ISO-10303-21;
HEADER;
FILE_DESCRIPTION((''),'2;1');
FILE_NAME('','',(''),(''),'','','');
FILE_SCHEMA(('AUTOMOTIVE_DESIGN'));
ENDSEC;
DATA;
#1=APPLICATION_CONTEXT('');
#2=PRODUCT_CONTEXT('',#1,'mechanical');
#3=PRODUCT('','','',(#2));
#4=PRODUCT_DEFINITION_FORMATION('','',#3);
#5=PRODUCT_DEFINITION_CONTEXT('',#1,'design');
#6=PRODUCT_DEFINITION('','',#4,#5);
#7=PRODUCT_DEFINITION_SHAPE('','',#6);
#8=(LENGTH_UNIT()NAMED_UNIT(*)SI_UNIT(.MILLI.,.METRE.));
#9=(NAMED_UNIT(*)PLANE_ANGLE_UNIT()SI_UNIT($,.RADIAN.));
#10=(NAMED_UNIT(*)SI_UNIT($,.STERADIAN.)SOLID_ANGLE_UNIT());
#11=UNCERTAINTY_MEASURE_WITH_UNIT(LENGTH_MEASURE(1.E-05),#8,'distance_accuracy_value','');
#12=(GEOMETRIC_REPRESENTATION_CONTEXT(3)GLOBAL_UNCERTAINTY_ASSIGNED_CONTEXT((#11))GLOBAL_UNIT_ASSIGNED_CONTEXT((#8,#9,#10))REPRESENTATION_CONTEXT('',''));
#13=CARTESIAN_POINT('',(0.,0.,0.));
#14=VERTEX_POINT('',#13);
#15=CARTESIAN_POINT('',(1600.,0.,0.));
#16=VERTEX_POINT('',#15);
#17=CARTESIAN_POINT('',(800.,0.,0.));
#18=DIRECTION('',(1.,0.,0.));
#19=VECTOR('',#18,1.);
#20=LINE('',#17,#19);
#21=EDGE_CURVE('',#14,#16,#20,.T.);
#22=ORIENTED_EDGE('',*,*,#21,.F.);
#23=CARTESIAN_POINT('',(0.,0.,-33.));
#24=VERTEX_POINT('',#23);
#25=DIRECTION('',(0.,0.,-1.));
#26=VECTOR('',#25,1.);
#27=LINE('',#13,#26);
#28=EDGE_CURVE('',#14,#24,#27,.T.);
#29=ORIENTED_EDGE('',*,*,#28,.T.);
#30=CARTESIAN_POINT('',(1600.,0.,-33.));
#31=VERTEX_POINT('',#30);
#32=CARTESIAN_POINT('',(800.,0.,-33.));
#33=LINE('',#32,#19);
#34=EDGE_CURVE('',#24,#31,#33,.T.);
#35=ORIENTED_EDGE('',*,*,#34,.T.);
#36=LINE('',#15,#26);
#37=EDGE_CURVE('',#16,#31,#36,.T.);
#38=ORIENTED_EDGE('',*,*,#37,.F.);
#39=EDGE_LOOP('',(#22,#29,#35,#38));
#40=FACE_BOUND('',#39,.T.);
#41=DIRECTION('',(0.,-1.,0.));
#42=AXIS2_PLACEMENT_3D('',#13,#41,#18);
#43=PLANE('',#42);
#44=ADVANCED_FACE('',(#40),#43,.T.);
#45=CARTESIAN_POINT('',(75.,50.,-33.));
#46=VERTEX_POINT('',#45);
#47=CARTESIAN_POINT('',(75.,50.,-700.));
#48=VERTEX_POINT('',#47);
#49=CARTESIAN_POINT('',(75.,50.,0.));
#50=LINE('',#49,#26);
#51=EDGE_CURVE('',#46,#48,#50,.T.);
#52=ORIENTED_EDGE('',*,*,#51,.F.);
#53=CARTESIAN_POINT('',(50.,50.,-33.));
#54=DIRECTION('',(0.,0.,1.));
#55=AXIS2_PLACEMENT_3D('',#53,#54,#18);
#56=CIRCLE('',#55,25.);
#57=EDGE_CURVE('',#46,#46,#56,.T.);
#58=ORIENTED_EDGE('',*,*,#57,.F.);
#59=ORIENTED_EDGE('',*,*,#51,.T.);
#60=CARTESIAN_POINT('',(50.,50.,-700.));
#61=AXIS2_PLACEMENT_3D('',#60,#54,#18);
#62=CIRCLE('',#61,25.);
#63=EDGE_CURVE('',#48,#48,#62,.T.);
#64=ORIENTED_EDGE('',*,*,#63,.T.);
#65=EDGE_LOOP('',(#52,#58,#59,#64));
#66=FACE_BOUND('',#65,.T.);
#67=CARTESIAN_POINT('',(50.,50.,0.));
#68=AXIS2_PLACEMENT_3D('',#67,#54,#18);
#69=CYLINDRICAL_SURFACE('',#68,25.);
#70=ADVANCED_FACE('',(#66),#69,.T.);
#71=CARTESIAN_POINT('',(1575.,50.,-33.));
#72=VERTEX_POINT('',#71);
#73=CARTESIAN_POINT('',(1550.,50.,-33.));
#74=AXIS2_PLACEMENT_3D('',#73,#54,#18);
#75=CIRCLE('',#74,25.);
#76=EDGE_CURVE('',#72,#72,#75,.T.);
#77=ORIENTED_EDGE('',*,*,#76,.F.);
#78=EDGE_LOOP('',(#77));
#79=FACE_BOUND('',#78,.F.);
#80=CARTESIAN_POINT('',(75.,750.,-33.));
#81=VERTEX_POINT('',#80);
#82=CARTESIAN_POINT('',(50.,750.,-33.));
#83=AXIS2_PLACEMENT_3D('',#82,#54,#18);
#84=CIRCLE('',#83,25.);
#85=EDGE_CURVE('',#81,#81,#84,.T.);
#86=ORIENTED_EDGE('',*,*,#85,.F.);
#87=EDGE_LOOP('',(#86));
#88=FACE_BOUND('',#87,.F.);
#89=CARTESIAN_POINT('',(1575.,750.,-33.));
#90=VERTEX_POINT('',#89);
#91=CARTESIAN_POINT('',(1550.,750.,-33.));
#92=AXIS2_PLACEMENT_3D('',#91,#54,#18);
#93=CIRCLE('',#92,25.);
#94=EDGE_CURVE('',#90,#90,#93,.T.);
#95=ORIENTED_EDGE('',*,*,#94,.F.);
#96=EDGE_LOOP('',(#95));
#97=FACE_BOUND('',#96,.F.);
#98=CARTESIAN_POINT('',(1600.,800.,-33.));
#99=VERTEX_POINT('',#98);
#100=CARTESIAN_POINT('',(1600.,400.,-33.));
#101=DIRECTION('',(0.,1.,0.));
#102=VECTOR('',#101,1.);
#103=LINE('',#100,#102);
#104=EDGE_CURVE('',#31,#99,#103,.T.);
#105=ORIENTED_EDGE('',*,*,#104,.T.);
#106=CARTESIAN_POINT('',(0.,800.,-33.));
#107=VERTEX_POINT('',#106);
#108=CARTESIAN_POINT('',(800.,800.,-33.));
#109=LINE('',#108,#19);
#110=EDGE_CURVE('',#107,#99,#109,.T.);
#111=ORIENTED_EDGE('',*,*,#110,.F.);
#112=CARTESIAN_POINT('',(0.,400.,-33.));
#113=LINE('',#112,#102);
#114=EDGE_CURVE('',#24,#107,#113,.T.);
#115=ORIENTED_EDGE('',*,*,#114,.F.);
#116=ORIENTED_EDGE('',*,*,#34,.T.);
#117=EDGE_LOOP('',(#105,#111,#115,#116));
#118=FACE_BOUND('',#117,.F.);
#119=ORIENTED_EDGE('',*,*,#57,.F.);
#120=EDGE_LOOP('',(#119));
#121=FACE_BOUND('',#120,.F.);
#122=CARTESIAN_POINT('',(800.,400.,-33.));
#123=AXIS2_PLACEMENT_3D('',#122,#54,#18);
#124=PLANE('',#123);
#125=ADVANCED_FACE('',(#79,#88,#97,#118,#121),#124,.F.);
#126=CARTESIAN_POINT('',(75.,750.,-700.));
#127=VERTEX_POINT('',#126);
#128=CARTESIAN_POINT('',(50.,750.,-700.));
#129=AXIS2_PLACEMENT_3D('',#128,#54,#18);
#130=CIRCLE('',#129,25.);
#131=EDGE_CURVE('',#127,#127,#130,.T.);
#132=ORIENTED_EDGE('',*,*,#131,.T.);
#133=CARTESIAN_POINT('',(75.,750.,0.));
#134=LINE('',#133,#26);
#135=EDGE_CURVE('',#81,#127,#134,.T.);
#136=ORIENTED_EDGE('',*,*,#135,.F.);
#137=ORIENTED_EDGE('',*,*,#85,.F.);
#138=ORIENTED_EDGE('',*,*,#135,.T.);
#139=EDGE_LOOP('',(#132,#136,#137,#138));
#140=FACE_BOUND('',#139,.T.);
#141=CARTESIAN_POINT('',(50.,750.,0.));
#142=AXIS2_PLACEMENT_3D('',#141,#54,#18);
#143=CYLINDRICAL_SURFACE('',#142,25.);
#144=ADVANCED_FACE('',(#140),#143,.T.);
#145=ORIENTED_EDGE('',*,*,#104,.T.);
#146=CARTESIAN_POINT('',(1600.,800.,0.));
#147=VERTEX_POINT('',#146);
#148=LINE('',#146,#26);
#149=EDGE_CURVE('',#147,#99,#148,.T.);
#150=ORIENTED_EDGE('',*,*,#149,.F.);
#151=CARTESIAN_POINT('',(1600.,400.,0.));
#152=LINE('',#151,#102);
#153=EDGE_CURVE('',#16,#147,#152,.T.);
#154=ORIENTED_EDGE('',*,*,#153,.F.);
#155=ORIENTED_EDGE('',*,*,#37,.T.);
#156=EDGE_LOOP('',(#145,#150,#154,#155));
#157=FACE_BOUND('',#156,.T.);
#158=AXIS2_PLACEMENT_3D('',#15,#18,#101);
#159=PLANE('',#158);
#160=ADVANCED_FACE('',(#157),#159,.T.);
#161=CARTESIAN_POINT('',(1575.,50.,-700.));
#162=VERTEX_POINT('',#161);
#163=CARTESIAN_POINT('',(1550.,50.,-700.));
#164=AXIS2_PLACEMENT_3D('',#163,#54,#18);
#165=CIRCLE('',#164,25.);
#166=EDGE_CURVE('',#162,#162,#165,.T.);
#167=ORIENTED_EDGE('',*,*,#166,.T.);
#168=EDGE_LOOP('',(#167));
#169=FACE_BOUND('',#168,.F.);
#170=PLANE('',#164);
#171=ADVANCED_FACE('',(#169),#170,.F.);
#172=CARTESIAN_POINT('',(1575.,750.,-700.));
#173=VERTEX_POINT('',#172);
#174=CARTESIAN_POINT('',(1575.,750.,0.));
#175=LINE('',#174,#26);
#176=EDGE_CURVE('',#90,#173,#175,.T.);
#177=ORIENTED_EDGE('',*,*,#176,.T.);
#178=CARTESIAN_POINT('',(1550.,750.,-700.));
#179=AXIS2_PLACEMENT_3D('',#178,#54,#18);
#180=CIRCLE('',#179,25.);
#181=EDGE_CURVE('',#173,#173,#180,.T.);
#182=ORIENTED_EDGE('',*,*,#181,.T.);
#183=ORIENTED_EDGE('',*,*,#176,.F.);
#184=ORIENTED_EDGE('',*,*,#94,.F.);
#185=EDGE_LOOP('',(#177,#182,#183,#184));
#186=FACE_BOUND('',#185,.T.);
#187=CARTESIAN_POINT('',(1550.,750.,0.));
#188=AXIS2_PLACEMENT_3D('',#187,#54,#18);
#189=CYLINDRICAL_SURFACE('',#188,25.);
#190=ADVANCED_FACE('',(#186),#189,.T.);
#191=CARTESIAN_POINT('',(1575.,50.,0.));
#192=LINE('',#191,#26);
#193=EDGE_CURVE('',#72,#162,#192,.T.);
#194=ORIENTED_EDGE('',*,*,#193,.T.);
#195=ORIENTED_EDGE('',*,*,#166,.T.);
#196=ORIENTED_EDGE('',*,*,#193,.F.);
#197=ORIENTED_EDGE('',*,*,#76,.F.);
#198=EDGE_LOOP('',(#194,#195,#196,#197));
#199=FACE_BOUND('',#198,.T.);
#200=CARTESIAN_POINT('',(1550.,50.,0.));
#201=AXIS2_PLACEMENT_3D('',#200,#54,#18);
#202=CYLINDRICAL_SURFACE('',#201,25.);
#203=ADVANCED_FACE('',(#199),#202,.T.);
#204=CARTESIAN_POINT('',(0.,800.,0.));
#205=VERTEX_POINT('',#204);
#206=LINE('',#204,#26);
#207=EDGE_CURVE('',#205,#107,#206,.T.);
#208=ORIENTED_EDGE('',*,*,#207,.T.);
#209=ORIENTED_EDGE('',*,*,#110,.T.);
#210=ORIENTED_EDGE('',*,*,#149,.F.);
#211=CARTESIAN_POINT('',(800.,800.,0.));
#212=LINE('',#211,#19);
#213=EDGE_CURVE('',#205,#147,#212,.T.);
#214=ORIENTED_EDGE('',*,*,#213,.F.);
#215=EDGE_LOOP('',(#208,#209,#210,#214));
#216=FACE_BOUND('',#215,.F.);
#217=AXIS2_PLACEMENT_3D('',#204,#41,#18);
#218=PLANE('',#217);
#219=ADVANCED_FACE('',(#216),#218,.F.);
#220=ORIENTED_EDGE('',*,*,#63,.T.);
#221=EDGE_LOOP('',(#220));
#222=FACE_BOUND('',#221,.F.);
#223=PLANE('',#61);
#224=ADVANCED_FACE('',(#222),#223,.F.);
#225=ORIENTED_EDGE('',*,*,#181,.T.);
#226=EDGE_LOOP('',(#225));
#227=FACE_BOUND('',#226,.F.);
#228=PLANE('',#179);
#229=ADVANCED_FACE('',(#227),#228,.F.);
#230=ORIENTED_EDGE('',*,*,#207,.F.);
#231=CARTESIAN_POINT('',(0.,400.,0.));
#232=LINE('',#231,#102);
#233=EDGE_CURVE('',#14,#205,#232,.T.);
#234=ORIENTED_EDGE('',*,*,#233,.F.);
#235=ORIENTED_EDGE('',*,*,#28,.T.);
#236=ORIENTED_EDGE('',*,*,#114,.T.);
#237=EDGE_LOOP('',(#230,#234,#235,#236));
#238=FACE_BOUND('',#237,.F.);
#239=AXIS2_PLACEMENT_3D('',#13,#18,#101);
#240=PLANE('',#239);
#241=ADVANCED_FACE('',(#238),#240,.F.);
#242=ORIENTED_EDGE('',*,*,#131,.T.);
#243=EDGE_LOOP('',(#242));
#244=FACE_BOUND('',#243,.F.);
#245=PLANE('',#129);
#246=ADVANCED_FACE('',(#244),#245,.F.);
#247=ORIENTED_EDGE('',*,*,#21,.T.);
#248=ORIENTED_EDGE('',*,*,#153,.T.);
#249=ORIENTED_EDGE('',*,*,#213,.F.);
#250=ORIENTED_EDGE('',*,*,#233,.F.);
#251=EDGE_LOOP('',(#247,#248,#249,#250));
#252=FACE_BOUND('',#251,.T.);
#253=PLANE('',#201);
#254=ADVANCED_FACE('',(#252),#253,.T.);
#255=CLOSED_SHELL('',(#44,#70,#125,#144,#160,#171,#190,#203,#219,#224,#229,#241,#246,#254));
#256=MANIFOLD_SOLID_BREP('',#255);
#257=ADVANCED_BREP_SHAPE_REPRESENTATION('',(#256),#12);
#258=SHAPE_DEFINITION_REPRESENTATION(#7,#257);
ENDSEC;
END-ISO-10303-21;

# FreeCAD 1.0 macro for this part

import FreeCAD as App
import Part
import Sketcher
from FreeCAD import Vector

doc = App.newDocument("Part")
body = doc.addObject("PartDesign::Body", "Body")

# Sketch on XY plane
sketch1 = body.newObject("Sketcher::SketchObject", "Sketch")
sketch1.AttachmentSupport = (doc.getObject("XY_Plane"), [""])
sketch1.MapMode = "FlatFace"
sketch1.addGeometry([
    Part.LineSegment(Vector(0, 800, 0), Vector(0, 0, 0)),
    Part.LineSegment(Vector(0, 0, 0), Vector(1600, 0, 0)),
    Part.LineSegment(Vector(1600, 0, 0), Vector(1600, 800, 0)),
    Part.LineSegment(Vector(1600, 800, 0), Vector(0, 800, 0)),
], False)
sketch1.addConstraint([
    Sketcher.Constraint("Coincident", 0, 2, 1, 1),
    Sketcher.Constraint("Coincident", 1, 2, 2, 1),
    Sketcher.Constraint("Coincident", 2, 2, 3, 1),
    Sketcher.Constraint("Coincident", 3, 2, 0, 1),
    Sketcher.Constraint("Vertical", 0),
    Sketcher.Constraint("Horizontal", 1),
    Sketcher.Constraint("Vertical", 2),
    Sketcher.Constraint("Horizontal", 3),
    Sketcher.Constraint("Coincident", 0, 2, -1, 1),
    Sketcher.Constraint("DistanceX", 1, 1, 1, 2, 1600.0),
    Sketcher.Constraint("DistanceY", 0, 2, 0, 1, 800.0),
])
pad1 = body.newObject("PartDesign::Pad", "Pad")
pad1.Profile = sketch1
pad1.Length = 33
pad1.Reversed = True

# Sketch on XY plane
sketch2 = body.newObject("Sketcher::SketchObject", "Sketch001")
sketch2.AttachmentSupport = (doc.getObject("XY_Plane"), [""])
sketch2.MapMode = "FlatFace"
sketch2.addGeometry([
    Part.Circle(Vector(1550, 50, 0), Vector(0, 0, 1), 25),
    Part.Circle(Vector(1550, 750, 0), Vector(0, 0, 1), 25),
    Part.Circle(Vector(50, 750, 0), Vector(0, 0, 1), 25),
    Part.Circle(Vector(50, 50, 0), Vector(0, 0, 1), 25),
], False)
sketch2.addConstraint([
    Sketcher.Constraint("Equal", 0, 1),
    Sketcher.Constraint("Equal", 1, 2),
    Sketcher.Constraint("Equal", 2, 3),
    Sketcher.Constraint("Horizontal", 1, 3, 2, 3),
    Sketcher.Constraint("Horizontal", 0, 3, 3, 3),
    Sketcher.Constraint("Vertical", 0, 3, 1, 3),
    Sketcher.Constraint("Vertical", 2, 3, 3, 3),
    Sketcher.Constraint("Diameter", 0, 50.0),
    Sketcher.Constraint("DistanceX", -1, 1, 0, 3, 1550.0),
    Sketcher.Constraint("DistanceY", -1, 1, 0, 3, 50.0),
    Sketcher.Constraint("DistanceY", -1, 1, 1, 3, 750.0),
    Sketcher.Constraint("DistanceX", -1, 1, 2, 3, 50.0),
])
pad2 = body.newObject("PartDesign::Pad", "Pad001")
pad2.Profile = sketch2
pad2.Length = 700
pad2.Reversed = True

doc.recompute()
